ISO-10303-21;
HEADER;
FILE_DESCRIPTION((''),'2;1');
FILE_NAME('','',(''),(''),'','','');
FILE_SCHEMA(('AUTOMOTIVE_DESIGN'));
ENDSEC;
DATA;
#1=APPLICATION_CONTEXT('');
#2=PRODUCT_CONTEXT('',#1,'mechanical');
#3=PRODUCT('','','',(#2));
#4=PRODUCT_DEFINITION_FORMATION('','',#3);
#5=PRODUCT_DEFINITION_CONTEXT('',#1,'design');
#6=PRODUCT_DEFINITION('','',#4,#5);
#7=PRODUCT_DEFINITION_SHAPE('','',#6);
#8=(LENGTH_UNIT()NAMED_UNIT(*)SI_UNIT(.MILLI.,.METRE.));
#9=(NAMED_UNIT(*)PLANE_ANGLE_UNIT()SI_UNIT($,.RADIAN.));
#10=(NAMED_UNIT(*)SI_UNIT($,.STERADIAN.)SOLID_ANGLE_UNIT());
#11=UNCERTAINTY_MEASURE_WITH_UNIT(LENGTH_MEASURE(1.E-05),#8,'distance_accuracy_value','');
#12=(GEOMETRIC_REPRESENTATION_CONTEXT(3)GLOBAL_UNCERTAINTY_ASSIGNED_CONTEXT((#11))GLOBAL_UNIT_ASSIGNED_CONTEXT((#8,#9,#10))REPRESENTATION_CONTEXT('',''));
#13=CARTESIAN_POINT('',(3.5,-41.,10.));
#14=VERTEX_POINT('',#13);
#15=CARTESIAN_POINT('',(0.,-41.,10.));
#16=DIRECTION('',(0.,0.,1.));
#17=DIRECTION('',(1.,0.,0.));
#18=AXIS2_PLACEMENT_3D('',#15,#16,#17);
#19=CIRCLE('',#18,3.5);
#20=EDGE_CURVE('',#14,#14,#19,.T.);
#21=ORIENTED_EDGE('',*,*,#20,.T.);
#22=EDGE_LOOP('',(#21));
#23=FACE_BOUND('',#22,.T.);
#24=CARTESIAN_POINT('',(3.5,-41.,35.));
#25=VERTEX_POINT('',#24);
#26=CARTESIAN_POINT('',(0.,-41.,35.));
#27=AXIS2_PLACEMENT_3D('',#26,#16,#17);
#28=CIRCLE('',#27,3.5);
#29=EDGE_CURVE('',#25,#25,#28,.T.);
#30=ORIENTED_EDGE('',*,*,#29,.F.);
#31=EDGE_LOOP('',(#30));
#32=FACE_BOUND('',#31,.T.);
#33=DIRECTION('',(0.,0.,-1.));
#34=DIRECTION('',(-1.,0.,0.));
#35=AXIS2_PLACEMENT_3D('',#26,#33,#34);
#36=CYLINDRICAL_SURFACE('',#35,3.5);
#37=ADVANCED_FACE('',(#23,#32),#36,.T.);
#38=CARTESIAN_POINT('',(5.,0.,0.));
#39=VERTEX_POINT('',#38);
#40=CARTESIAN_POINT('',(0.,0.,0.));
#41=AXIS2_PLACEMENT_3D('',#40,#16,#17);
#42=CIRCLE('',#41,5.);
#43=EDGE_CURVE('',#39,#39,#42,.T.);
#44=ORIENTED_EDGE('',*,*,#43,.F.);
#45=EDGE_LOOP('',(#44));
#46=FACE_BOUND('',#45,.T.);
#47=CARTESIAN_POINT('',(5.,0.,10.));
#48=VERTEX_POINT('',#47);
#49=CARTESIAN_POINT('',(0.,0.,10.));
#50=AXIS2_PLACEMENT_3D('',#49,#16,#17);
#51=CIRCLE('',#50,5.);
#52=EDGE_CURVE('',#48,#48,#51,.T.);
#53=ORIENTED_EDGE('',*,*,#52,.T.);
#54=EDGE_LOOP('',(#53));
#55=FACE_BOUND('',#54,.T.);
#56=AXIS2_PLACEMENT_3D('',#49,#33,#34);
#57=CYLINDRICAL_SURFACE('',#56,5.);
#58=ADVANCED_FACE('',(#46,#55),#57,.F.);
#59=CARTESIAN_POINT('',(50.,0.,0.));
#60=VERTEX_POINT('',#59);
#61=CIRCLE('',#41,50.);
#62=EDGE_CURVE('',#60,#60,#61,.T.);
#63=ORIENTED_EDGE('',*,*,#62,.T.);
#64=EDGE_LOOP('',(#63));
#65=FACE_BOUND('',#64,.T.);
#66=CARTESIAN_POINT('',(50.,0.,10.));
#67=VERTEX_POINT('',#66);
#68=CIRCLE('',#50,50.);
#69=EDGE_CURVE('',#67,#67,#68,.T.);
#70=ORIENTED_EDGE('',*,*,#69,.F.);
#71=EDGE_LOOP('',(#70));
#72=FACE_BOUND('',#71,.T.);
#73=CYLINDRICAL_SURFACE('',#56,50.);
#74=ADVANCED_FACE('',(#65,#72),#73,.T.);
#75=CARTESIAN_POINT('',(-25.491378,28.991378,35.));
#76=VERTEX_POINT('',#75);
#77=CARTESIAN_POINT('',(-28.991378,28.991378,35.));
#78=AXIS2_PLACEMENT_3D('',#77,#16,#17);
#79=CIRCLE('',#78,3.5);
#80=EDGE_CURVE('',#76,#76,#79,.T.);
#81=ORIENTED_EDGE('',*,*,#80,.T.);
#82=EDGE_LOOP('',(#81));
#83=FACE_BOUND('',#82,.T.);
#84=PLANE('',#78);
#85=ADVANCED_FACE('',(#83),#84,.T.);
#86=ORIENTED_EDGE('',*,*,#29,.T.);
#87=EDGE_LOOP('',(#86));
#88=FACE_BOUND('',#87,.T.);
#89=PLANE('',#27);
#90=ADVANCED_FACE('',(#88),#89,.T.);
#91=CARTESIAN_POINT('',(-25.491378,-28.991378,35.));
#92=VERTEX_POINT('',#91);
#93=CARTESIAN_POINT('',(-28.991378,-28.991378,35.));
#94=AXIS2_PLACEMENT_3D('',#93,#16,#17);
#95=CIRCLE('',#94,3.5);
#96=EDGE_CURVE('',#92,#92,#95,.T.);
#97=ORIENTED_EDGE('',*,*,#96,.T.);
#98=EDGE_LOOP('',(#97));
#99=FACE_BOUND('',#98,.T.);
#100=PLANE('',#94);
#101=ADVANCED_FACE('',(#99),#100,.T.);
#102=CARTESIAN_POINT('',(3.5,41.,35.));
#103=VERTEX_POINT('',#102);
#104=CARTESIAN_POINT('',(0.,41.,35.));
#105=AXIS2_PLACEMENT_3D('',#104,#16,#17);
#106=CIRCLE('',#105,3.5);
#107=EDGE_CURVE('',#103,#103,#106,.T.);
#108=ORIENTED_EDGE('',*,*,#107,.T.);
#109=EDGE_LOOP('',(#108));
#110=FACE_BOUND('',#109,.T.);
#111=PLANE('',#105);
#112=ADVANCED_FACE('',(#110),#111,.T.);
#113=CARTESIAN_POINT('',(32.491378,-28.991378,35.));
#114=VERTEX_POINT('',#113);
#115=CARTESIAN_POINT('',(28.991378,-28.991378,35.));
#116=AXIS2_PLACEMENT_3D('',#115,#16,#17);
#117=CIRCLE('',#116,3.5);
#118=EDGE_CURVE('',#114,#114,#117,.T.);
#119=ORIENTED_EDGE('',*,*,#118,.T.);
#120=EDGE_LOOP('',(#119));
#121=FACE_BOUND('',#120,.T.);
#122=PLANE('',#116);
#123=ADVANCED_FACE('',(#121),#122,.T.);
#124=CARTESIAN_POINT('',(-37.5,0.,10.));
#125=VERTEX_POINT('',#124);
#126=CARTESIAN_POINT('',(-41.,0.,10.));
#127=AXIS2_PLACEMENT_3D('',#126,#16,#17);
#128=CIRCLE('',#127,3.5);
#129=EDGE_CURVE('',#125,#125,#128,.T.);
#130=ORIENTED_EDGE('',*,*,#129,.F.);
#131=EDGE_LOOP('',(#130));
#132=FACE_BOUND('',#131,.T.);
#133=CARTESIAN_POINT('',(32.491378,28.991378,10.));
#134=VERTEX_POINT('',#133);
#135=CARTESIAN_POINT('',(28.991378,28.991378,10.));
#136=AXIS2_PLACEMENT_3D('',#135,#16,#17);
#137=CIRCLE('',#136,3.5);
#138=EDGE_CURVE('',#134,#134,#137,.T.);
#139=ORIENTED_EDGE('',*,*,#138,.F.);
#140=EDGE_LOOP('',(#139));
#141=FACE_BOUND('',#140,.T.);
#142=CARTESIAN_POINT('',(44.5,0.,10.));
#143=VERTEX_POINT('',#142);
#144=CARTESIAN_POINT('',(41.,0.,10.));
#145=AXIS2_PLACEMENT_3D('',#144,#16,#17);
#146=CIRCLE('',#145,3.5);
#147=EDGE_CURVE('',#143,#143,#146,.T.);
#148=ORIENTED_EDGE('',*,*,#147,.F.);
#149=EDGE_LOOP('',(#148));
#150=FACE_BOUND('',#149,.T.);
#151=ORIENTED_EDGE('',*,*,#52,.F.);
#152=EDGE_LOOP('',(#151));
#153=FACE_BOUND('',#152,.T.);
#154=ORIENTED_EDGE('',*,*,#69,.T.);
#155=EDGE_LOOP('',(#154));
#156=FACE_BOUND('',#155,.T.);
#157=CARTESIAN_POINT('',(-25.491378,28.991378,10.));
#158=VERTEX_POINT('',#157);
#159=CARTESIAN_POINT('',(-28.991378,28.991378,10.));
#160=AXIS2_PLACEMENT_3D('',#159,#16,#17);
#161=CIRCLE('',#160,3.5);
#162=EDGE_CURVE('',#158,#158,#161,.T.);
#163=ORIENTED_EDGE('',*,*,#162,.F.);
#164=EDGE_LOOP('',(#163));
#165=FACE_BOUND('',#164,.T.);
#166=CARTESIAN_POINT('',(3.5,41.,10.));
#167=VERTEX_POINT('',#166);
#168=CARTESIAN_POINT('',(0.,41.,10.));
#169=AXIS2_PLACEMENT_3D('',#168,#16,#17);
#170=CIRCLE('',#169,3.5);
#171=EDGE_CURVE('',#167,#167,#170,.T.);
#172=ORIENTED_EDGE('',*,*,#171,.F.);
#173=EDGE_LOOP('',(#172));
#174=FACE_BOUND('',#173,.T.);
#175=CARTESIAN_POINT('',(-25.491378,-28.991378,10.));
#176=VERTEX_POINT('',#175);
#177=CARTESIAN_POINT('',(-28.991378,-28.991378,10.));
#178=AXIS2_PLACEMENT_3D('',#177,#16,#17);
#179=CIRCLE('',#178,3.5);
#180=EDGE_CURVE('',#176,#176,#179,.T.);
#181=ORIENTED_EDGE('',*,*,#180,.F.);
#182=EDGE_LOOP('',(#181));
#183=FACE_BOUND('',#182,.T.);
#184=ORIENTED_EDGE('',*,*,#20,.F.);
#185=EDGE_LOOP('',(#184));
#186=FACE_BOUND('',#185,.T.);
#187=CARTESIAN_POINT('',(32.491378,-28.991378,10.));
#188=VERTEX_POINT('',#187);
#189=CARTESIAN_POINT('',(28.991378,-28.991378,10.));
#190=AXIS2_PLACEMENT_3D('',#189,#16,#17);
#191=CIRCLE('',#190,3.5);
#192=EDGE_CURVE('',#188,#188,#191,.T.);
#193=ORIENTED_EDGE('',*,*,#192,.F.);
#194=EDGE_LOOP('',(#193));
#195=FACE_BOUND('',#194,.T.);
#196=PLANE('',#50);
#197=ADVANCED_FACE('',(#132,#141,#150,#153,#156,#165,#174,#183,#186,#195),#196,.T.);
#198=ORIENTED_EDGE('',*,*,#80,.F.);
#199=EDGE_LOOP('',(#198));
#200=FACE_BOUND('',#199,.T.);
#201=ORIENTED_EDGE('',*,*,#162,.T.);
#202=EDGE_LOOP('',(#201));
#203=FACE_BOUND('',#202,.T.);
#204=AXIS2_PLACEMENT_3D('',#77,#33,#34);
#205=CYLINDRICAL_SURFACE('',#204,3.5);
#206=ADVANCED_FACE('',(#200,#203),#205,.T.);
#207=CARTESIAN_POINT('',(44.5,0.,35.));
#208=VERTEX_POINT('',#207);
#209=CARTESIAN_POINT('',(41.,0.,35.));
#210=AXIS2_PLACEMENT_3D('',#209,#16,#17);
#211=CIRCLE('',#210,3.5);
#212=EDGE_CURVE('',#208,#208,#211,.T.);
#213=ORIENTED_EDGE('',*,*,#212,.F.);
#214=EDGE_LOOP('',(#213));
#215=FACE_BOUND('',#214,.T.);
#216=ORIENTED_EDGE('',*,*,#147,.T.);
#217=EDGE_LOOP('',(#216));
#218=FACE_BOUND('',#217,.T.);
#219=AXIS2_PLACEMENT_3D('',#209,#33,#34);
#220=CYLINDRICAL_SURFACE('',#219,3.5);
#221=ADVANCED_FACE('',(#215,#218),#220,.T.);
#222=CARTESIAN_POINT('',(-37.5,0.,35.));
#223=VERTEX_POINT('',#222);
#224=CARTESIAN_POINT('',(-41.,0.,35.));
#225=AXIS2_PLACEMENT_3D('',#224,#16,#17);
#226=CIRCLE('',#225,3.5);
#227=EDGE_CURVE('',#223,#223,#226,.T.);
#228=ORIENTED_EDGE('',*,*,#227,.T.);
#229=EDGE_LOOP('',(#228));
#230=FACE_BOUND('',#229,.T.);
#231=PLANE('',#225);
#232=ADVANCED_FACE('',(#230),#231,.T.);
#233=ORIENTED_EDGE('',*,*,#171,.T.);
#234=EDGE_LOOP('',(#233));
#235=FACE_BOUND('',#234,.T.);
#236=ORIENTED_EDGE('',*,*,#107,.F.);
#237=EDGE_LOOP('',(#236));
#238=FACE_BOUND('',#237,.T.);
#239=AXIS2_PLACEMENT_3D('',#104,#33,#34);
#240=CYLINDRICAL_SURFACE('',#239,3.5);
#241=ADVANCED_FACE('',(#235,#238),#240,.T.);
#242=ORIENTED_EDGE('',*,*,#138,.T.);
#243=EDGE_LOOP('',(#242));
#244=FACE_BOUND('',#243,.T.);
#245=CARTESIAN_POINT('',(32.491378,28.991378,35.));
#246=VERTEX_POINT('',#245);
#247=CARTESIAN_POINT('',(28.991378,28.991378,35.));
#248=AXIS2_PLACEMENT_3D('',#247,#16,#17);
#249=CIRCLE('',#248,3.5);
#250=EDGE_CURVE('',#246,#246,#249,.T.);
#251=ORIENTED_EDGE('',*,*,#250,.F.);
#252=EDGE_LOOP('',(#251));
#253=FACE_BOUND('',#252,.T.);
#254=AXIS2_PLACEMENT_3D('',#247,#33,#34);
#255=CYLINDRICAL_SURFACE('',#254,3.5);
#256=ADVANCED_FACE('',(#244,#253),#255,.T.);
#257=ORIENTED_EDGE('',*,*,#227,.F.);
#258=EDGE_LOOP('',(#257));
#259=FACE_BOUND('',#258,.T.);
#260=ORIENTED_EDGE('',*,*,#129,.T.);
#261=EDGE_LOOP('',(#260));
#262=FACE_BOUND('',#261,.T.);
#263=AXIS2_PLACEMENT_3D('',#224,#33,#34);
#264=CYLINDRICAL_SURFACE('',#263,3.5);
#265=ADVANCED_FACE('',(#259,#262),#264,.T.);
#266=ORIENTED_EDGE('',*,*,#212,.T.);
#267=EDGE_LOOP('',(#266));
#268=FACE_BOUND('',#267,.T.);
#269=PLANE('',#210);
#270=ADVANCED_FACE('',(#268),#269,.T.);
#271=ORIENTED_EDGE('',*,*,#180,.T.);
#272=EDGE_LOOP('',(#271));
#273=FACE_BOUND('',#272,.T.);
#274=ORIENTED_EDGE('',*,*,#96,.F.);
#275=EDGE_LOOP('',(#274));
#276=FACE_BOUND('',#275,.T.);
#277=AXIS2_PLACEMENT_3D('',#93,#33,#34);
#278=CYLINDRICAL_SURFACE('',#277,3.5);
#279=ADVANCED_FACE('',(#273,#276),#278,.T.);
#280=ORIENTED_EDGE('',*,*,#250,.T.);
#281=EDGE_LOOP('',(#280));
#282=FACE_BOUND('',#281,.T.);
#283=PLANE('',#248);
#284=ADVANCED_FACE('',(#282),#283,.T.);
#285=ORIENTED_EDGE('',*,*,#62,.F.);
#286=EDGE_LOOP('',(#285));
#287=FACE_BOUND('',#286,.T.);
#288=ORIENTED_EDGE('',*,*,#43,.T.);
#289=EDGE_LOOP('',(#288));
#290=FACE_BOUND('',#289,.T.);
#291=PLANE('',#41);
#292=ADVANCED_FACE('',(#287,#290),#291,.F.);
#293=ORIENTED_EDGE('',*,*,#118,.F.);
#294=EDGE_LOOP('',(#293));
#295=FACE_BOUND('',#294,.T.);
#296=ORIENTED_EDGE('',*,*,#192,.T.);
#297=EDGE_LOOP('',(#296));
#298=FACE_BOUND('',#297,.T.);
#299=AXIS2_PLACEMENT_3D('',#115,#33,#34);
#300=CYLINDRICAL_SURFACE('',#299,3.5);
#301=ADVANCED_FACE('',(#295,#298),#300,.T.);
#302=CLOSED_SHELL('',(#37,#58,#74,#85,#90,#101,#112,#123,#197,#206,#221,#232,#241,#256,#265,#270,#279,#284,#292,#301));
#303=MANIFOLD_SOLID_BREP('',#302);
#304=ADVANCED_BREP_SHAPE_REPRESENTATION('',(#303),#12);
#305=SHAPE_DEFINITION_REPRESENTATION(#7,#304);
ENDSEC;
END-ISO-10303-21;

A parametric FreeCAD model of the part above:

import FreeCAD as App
import Part
import Sketcher

V = App.Vector

doc = App.newDocument("Part")
params = doc.addObject("Spreadsheet::Sheet", "Params")
for row, (alias, value) in enumerate([
    ("sketch1_diameter", "100 mm"),
    ("sketch1_diameter2", "10 mm"),
    ("pad1_length", "10 mm"),
    ("sketch2_diameter", "7 mm"),
    ("pad2_length", "25 mm"),
], start=1):
    params.set(f"A{row}", alias)
    params.set(f"B{row}", "=" + value)
    params.setAlias(f"B{row}", alias)

body = doc.addObject("PartDesign::Body", "Body")

# Sketch on XY plane
sketch1 = doc.addObject("Sketcher::SketchObject", "Sketch")
body.addObject(sketch1)
sketch1.AttachmentSupport = (doc.XY_Plane, [""])
sketch1.MapMode = "FlatFace"
sketch1.addGeometry(Part.Circle(V(0, 0, 0), V(0, 0, 1), 50), False)
sketch1.addGeometry(Part.Circle(V(0, 0, 0), V(0, 0, 1), 5), False)
sketch1.addConstraint(Sketcher.Constraint("Coincident", 0, 3, -1, 1))
sketch1.addConstraint(Sketcher.Constraint("Coincident", 1, 3, -1, 1))
sketch1.addConstraint(Sketcher.Constraint("Diameter", 0, 100.0))
sketch1.addConstraint(Sketcher.Constraint("Diameter", 1, 10.0))
sketch1.setExpression("Constraints[2]", "Params.sketch1_diameter")
sketch1.setExpression("Constraints[3]", "Params.sketch1_diameter2")
pad1 = doc.addObject("PartDesign::Pad", "Pad")
body.addObject(pad1)
pad1.Profile = sketch1
pad1.setExpression("Length", "Params.pad1_length")

# Sketch on XY plane
sketch2 = doc.addObject("Sketcher::SketchObject", "Sketch001")
body.addObject(sketch2)
sketch2.AttachmentSupport = (doc.XY_Plane, [""])
sketch2.MapMode = "FlatFace"
sketch2.AttachmentOffset = App.Placement(V(0, 0, 10), App.Rotation())
sketch2.addGeometry(Part.Circle(V(0, 41, 0), V(0, 0, 1), 3.5), False)
sketch2.addGeometry(Part.Circle(V(28.991378, 28.991378, 0), V(0, 0, 1), 3.5), False)
sketch2.addGeometry(Part.Circle(V(41, 0, 0), V(0, 0, 1), 3.5), False)
sketch2.addGeometry(Part.Circle(V(28.991378, -28.991378, 0), V(0, 0, 1), 3.5), False)
sketch2.addGeometry(Part.Circle(V(0, -41, 0), V(0, 0, 1), 3.5), False)
sketch2.addGeometry(Part.Circle(V(-28.991378, -28.991378, 0), V(0, 0, 1), 3.5), False)
sketch2.addGeometry(Part.Circle(V(-41, 0, 0), V(0, 0, 1), 3.5), False)
sketch2.addGeometry(Part.Circle(V(-28.991378, 28.991378, 0), V(0, 0, 1), 3.5), False)
sketch2.addConstraint(Sketcher.Constraint("Equal", 0, 1))
sketch2.addConstraint(Sketcher.Constraint("Equal", 1, 2))
sketch2.addConstraint(Sketcher.Constraint("Equal", 2, 3))
sketch2.addConstraint(Sketcher.Constraint("Equal", 3, 4))
sketch2.addConstraint(Sketcher.Constraint("Equal", 4, 5))
sketch2.addConstraint(Sketcher.Constraint("Equal", 5, 6))
sketch2.addConstraint(Sketcher.Constraint("Equal", 6, 7))
sketch2.addConstraint(Sketcher.Constraint("Symmetric", 0, 3, 4, 3, -1, 1))
sketch2.addConstraint(Sketcher.Constraint("Symmetric", 1, 3, 5, 3, -1, 1))
sketch2.addConstraint(Sketcher.Constraint("Symmetric", 2, 3, 6, 3, -1, 1))
sketch2.addConstraint(Sketcher.Constraint("Symmetric", 3, 3, 7, 3, -1, 1))
sketch2.addConstraint(Sketcher.Constraint("Symmetric", 3, 3, 5, 3, -2))
sketch2.addConstraint(Sketcher.Constraint("PointOnObject", 0, 3, -2))
sketch2.addConstraint(Sketcher.Constraint("PointOnObject", 2, 3, -1))
sketch2.addConstraint(Sketcher.Constraint("Diameter", 0, 7.0))
sketch2.addConstraint(Sketcher.Constraint("DistanceY", -1, 1, 0, 3, 41.0))
sketch2.addConstraint(Sketcher.Constraint("DistanceX", -1, 1, 2, 3, 41.0))
sketch2.addConstraint(Sketcher.Constraint("DistanceX", -1, 1, 1, 3, 28.991378))
sketch2.addConstraint(Sketcher.Constraint("DistanceY", -1, 1, 1, 3, 28.991378))
sketch2.setExpression("Constraints[14]", "Params.sketch2_diameter")
pad2 = doc.addObject("PartDesign::Pad", "Pad001")
body.addObject(pad2)
pad2.Profile = sketch2
pad2.setExpression("Length", "Params.pad2_length")

doc.recompute()
